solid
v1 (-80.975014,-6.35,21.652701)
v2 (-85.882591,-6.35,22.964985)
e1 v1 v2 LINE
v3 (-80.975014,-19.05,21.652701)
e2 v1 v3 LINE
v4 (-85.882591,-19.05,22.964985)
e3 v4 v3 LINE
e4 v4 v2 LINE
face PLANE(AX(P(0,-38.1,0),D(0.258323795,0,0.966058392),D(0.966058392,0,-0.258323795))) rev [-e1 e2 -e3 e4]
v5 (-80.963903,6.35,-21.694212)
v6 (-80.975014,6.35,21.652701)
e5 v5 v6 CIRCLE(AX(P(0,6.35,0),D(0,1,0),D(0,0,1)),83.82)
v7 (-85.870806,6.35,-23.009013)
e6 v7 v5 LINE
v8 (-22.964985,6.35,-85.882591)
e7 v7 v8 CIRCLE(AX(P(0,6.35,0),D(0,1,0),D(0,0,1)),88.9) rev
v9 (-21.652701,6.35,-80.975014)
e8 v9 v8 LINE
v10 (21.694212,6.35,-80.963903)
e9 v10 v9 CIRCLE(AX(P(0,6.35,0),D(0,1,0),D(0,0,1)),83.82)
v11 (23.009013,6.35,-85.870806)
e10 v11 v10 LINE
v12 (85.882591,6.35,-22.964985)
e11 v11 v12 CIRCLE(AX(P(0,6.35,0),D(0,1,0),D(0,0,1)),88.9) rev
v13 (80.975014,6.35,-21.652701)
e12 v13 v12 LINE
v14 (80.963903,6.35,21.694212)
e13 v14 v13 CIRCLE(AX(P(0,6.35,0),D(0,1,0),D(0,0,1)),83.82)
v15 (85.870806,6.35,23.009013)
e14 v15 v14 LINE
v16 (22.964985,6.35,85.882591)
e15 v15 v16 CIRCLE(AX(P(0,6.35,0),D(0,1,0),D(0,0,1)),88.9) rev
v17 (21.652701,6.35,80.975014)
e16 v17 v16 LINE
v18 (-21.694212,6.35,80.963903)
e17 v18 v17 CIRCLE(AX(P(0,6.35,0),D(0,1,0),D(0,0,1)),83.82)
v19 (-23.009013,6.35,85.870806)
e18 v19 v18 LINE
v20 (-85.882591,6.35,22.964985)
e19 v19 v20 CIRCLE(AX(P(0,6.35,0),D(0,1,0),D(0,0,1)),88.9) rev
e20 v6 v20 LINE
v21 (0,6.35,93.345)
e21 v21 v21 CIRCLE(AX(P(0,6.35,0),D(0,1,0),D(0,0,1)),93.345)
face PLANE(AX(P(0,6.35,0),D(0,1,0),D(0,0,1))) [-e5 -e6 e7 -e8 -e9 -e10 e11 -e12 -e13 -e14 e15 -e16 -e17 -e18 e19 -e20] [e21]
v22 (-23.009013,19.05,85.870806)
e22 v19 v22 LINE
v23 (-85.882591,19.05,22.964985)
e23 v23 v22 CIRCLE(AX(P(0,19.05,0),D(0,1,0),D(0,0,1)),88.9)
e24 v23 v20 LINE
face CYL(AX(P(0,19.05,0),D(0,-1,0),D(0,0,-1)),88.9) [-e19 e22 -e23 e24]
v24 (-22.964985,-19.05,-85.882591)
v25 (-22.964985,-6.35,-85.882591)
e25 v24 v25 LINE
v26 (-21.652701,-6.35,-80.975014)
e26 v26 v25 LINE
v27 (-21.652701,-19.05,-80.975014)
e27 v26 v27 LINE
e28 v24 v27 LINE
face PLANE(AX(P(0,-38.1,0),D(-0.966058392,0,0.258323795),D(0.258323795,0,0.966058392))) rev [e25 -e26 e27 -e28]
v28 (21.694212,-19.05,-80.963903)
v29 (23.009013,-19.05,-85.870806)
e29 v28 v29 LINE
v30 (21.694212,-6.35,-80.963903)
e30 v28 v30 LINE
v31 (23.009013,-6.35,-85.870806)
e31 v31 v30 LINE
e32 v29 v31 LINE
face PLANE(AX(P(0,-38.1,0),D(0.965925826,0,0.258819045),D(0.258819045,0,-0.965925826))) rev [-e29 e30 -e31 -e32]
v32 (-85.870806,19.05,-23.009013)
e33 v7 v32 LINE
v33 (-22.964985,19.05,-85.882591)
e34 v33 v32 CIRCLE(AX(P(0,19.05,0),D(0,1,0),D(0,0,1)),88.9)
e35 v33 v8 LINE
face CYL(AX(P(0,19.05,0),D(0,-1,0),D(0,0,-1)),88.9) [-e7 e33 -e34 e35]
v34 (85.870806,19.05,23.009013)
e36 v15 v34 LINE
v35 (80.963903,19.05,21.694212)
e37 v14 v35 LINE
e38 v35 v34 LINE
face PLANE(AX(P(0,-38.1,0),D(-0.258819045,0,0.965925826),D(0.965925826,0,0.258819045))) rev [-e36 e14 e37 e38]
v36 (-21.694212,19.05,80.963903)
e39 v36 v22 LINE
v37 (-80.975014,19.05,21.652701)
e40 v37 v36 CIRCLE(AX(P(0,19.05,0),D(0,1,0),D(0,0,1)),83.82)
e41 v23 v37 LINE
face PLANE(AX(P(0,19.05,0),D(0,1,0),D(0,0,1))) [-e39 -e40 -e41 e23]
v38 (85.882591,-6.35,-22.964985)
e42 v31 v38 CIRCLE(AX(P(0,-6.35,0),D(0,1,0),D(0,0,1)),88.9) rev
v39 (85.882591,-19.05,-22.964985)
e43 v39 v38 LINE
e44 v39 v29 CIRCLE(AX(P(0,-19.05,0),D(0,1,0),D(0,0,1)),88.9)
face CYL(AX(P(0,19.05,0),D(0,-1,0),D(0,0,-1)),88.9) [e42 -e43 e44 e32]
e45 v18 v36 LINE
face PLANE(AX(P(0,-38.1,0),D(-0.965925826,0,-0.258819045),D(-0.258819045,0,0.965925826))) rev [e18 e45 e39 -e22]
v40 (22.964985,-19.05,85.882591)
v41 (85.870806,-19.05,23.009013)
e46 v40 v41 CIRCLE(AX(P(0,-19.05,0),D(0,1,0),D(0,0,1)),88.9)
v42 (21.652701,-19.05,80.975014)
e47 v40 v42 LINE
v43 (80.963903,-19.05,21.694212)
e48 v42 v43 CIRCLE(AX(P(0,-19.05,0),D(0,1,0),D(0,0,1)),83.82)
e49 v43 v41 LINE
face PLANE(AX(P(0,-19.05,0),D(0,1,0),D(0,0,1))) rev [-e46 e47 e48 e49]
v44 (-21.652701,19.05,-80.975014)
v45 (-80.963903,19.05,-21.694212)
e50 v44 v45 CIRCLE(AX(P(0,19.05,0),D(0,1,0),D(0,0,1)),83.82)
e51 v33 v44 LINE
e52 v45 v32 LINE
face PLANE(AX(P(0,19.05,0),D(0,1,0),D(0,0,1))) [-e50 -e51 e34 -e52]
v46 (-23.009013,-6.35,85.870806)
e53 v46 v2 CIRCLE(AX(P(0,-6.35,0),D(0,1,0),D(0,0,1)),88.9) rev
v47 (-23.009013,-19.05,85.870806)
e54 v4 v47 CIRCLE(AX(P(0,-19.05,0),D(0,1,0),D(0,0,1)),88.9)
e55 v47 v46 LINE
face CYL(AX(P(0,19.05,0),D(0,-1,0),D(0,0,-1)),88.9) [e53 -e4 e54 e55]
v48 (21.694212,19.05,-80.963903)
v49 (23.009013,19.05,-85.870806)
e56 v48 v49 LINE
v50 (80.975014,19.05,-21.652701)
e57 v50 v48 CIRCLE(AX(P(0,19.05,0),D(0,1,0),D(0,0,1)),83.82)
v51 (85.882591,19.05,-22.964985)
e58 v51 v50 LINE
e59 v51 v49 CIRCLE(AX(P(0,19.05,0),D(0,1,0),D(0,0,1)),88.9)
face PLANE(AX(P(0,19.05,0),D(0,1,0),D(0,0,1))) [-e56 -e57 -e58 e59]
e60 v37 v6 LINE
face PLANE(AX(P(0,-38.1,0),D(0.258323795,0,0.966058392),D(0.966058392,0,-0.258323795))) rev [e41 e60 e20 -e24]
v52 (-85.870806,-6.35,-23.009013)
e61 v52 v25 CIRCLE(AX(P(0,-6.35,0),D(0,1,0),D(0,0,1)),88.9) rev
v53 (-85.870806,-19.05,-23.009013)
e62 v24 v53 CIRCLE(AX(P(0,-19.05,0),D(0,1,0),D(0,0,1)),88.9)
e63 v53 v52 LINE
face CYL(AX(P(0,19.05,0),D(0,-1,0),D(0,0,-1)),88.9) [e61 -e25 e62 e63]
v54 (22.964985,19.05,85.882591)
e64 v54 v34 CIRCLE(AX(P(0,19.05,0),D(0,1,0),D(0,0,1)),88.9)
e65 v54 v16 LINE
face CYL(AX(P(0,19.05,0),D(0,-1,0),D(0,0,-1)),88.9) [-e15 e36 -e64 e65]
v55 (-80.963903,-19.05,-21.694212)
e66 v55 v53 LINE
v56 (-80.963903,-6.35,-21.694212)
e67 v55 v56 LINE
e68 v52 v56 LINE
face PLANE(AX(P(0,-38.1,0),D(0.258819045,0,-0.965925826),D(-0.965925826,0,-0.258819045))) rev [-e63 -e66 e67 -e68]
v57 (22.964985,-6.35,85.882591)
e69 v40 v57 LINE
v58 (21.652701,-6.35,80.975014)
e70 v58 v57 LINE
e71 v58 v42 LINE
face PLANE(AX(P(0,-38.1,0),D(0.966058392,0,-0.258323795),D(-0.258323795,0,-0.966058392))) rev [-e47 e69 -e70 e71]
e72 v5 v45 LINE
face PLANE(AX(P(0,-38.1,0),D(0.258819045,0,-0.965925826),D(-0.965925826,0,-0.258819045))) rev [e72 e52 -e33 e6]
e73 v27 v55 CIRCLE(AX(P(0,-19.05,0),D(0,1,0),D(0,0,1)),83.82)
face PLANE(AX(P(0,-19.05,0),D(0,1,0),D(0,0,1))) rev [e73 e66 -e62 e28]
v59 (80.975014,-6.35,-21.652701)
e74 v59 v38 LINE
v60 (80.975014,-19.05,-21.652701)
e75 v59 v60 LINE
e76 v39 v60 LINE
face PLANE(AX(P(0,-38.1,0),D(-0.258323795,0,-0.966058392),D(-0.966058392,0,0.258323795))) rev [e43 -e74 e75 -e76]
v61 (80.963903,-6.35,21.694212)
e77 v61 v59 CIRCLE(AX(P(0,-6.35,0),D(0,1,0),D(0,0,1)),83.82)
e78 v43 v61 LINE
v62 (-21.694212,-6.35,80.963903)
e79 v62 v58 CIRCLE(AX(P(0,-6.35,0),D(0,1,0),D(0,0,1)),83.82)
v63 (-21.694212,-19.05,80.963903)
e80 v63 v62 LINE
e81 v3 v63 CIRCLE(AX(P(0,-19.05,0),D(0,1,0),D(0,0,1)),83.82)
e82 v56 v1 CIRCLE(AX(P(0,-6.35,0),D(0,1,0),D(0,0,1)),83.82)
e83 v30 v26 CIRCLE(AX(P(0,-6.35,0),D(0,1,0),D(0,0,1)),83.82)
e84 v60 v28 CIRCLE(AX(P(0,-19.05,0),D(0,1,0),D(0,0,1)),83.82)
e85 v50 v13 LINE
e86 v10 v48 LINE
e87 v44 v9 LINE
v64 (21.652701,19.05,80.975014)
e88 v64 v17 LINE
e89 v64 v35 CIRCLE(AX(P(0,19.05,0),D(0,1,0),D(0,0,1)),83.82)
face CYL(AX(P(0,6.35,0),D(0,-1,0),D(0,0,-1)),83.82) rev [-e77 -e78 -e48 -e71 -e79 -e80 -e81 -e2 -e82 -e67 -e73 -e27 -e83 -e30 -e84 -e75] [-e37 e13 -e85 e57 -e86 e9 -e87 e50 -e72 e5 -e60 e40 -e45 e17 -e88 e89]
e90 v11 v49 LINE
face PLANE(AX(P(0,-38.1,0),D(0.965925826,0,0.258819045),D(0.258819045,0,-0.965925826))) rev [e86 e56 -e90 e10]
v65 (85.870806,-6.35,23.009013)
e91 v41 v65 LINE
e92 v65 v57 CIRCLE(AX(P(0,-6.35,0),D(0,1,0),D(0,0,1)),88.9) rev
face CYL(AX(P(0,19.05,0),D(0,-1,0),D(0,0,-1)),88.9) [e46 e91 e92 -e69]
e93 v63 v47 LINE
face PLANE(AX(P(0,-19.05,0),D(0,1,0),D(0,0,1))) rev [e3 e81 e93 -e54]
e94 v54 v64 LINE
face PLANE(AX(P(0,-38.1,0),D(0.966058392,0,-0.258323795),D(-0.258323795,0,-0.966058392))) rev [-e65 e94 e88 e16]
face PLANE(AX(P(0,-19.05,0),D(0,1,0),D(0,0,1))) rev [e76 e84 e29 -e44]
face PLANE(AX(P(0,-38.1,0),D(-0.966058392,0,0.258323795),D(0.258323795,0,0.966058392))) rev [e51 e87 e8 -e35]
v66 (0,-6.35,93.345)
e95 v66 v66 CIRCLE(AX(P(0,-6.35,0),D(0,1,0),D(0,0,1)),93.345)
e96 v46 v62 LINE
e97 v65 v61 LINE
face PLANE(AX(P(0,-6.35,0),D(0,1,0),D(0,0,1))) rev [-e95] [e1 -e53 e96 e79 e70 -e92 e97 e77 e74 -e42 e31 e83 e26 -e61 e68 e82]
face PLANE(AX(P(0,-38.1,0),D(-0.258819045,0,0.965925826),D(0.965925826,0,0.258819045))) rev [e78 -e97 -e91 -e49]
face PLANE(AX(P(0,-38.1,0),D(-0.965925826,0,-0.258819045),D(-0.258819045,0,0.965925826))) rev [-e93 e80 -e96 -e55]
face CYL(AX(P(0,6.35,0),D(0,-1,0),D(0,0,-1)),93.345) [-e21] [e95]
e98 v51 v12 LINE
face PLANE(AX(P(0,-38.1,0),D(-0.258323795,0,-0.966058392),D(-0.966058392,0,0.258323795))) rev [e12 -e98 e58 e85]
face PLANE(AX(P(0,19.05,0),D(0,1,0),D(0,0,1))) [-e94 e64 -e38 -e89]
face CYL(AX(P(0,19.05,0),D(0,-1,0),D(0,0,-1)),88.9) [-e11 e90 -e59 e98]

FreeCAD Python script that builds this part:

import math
import FreeCAD as App
import Part
import Sketcher
Q = App.Units.Quantity

doc = App.newDocument("Part")
body = doc.addObject("PartDesign::Body", "Body")

# Sketch on XZ plane
sketch1 = doc.addObject("Sketcher::SketchObject", "Sketch")
body.addObject(sketch1)
sketch1.AttachmentSupport = (doc.XZ_Plane, [""])
sketch1.MapMode = "FlatFace"
sketch1.addGeometry(Part.Circle(App.Vector(0, 0, 0), App.Vector(0, 0, 1), 93), False)
sketch1.addGeometry(Part.Circle(App.Vector(0, 0, 0), App.Vector(0, 0, 1), 84), False)
sketch1.addConstraint(Sketcher.Constraint("Coincident", 0, 3, -1, 1))
sketch1.addConstraint(Sketcher.Constraint("Coincident", 1, 3, -1, 1))
sketch1.addConstraint(Sketcher.Constraint("Diameter", 1, Q("6.6 in")))
sketch1.addConstraint(Sketcher.Constraint("Diameter", 0, Q("7.35 in")))
pad1 = doc.addObject("PartDesign::Pad", "Pad")
body.addObject(pad1)
pad1.Profile = sketch1
pad1.Length = Q("0.5 in")
pad1.Midplane = True

# Sketch on XZ plane
sketch2 = doc.addObject("Sketcher::SketchObject", "Sketch001")
body.addObject(sketch2)
sketch2.AttachmentSupport = (doc.XZ_Plane, [""])
sketch2.MapMode = "FlatFace"
sketch2.addGeometry(Part.Circle(App.Vector(0, 0, 0), App.Vector(0, 0, 1), 89), False)
sketch2.addGeometry(Part.Circle(App.Vector(0, 0, 0), App.Vector(0, 0, 1), 84), False)
sketch2.addConstraint(Sketcher.Constraint("Coincident", 0, 3, -1, 1))
sketch2.addConstraint(Sketcher.Constraint("Coincident", 1, 3, -1, 1))
sketch2.addConstraint(Sketcher.Constraint("Diameter", 0, Q("7 in")))
sketch2.addConstraint(Sketcher.Constraint("Diameter", 1, Q("6.6 in")))
pad2 = doc.addObject("PartDesign::Pad", "Pad001")
body.addObject(pad2)
pad2.Profile = sketch2
pad2.Length = Q("1.5 in")
pad2.Midplane = True

# Sketch on XZ plane
sketch3 = doc.addObject("Sketcher::SketchObject", "Sketch002")
body.addObject(sketch3)
sketch3.AttachmentSupport = (doc.XZ_Plane, [""])
sketch3.MapMode = "FlatFace"
sketch3.addGeometry(Part.LineSegment(App.Vector(-23, -86, 0), App.Vector(0, 0, 0)), False)
sketch3.addGeometry(Part.LineSegment(App.Vector(0, 0, 0), App.Vector(23, -86, 0)), False)
sketch3.addGeometry(Part.ArcOfCircle(Part.Circle(App.Vector(0, 0, 0), App.Vector(0, 0, 1), 89), math.radians(-105), math.radians(-75)), False)
sketch3.addConstraint(Sketcher.Constraint("Coincident", 0, 2, 1, 1))
sketch3.addConstraint(Sketcher.Constraint("Coincident", 1, 2, 2, 2))
sketch3.addConstraint(Sketcher.Constraint("Coincident", 2, 1, 0, 1))
sketch3.addConstraint(Sketcher.Constraint("Coincident", 2, 3, -1, 1))
sketch3.addConstraint(Sketcher.Constraint("Coincident", 0, 2, -1, 1))
sketch3.addConstraint(Sketcher.Constraint("Radius", 2, Q("3.5 in")))
sketch3.addConstraint(Sketcher.Constraint("Angle", 1, Q("-75 deg")))
sketch3.addConstraint(Sketcher.Constraint("DistanceX", 2, 1, 1, 2, Q("1.8099999 in")))
pocket1 = doc.addObject("PartDesign::Pocket", "Pocket")
body.addObject(pocket1)
pocket1.Profile = sketch3
pocket1.Length = Q("3 in")
pocket1.Midplane = True
doc.recompute()

polarpattern = doc.addObject("PartDesign::PolarPattern", "PolarPattern")
body.addObject(polarpattern)
polarpattern.Originals = [pocket1]
polarpattern.Axis = (doc.Y_Axis, [""])
polarpattern.Angle = 360
polarpattern.Occurrences = 4
body.Tip = polarpattern

# Sketch on XZ plane
sketch4 = doc.addObject("Sketcher::SketchObject", "Sketch003")
body.addObject(sketch4)
sketch4.AttachmentSupport = (doc.XZ_Plane, [""])
sketch4.MapMode = "FlatFace"
sketch4.addGeometry(Part.Circle(App.Vector(0, 0, 0), App.Vector(0, 0, 1), 89), False)
sketch4.addGeometry(Part.Circle(App.Vector(0, 0, 0), App.Vector(0, 0, 1), 84), False)
sketch4.addConstraint(Sketcher.Constraint("Coincident", 0, 3, -1, 1))
sketch4.addConstraint(Sketcher.Constraint("Coincident", 1, 3, -1, 1))
sketch4.addConstraint(Sketcher.Constraint("Diameter", 0, Q("7 in")))
sketch4.addConstraint(Sketcher.Constraint("Diameter", 1, Q("6.6 in")))
pad3 = doc.addObject("PartDesign::Pad", "Pad002")
body.addObject(pad3)
pad3.Profile = sketch4
pad3.Length = Q("0.5 in")
pad3.Midplane = True

doc.recompute()
